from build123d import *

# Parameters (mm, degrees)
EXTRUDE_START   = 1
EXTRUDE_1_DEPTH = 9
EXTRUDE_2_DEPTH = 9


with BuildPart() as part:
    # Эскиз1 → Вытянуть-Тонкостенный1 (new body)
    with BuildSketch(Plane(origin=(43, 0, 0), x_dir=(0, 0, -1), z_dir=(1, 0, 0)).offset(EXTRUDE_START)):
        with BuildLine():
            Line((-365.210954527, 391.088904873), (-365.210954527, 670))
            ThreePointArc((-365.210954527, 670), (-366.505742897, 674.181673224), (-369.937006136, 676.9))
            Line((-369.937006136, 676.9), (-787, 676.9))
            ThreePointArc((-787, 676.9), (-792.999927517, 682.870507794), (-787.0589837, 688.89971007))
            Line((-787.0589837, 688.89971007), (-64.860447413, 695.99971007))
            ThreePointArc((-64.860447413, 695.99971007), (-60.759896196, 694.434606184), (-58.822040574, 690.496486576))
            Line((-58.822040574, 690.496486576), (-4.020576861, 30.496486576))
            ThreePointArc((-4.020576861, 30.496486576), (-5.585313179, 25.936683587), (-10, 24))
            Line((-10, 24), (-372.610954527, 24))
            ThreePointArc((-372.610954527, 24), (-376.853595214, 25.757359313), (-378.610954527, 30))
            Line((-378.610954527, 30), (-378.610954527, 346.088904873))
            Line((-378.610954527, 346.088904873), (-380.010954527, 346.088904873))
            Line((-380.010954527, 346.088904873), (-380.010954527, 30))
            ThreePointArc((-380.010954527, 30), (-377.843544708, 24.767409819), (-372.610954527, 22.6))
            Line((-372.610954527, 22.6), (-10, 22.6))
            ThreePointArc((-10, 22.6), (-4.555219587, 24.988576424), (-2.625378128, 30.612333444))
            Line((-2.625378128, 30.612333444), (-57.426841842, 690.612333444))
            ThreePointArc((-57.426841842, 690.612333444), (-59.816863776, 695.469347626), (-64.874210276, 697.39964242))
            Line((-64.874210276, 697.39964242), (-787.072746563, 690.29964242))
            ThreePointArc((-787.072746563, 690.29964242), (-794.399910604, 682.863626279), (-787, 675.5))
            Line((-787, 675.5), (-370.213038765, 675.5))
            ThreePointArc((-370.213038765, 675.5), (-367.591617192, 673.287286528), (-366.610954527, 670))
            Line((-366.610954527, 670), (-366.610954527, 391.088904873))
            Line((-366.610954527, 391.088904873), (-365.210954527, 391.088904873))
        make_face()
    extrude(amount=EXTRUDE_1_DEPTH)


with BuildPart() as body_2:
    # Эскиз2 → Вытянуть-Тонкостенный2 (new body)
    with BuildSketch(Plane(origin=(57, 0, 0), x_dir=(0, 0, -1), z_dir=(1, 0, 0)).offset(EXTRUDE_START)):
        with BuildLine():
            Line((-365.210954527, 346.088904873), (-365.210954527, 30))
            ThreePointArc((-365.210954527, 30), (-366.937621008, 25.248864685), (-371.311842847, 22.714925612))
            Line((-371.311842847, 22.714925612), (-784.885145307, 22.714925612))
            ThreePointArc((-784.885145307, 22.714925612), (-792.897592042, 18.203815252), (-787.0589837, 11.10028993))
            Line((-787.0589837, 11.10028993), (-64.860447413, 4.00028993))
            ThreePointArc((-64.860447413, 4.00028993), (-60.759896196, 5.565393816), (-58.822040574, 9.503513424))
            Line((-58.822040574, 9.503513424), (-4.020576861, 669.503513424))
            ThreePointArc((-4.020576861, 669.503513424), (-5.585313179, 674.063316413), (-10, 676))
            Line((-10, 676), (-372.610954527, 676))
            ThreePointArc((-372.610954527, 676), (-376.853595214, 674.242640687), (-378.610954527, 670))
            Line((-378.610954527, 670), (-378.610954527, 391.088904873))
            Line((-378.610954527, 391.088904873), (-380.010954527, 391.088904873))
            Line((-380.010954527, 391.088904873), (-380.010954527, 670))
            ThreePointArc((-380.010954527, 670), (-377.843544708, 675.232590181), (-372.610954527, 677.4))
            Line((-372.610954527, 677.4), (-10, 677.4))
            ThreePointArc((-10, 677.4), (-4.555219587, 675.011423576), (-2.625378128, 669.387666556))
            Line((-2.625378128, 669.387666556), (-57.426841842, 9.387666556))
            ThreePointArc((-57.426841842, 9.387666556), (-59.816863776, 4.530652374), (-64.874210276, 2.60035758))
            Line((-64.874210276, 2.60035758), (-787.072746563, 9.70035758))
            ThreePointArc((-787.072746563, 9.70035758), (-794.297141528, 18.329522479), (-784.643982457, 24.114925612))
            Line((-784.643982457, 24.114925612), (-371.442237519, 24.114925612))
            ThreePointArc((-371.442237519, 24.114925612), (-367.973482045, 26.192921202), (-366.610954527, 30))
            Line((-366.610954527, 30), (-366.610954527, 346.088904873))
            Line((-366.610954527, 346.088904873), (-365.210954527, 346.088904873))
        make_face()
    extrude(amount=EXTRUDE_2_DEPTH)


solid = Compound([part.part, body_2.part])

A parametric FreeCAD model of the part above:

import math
import FreeCAD as App
import Part
import Sketcher
Q = App.Units.Quantity

doc = App.newDocument("Part")
params = doc.addObject("Spreadsheet::Sheet", "Params")
for row, (alias, value) in enumerate([
    ("sketch1_radius", "6 mm"),
    ("sketch1_radius2", "7.4 mm"),
    ("pad1_length", "9 mm"),
    ("sketch2_radius", "6 mm"),
    ("sketch2_radius2", "7.4 mm"),
    ("pad2_length", "9 mm"),
], start=1):
    params.set(f"A{row}", alias)
    params.set(f"B{row}", "=" + value)
    params.setAlias(f"B{row}", alias)

body = doc.addObject("PartDesign::Body", "Body")

# Sketch on YZ plane
sketch1 = body.newObject("Sketcher::SketchObject", "Sketch")
sketch1.AttachmentSupport = (doc.getObject("YZ_Plane"), [""])
sketch1.MapMode = "FlatFace"
sketch1.AttachmentOffset = App.Placement(App.Vector(0, 0, 44), App.Rotation())
sketch1.addGeometry(Part.LineSegment(App.Vector(391.1, 365.2, 0), App.Vector(670, 365.2, 0)), False)
sketch1.addGeometry(Part.ArcOfCircle(Part.Circle(App.Vector(670, 372.6, 0), App.Vector(0, 0, 1), 7.4), math.radians(-90), math.radians(-21)), False)
sketch1.addGeometry(Part.LineSegment(App.Vector(676.9, 369.9, 0), App.Vector(676.9, 787, 0)), False)
sketch1.addGeometry(Part.ArcOfCircle(Part.Circle(App.Vector(682.9, 787, 0), App.Vector(0, 0, 1), 6), math.radians(1), math.radians(180)), False)
sketch1.addGeometry(Part.LineSegment(App.Vector(688.9, 787.1, 0), App.Vector(696, 64.9, 0)), False)
sketch1.addGeometry(Part.ArcOfCircle(Part.Circle(App.Vector(690, 64.8, 0), App.Vector(0, 0, 1), 6), math.radians(-85), math.radians(1)), False)
sketch1.addGeometry(Part.LineSegment(App.Vector(690.5, 58.8, 0), App.Vector(30.5, 4, 0)), False)
sketch1.addGeometry(Part.ArcOfCircle(Part.Circle(App.Vector(30, 10, 0), App.Vector(0, 0, 1), 6), math.radians(180), math.radians(275)), False)
sketch1.addGeometry(Part.LineSegment(App.Vector(24, 10, 0), App.Vector(24, 372.6, 0)), False)
sketch1.addGeometry(Part.ArcOfCircle(Part.Circle(App.Vector(30, 372.6, 0), App.Vector(0, 0, 1), 6), math.radians(90), math.radians(180)), False)
sketch1.addGeometry(Part.LineSegment(App.Vector(30, 378.6, 0), App.Vector(346.1, 378.6, 0)), False)
sketch1.addGeometry(Part.LineSegment(App.Vector(346.1, 378.6, 0), App.Vector(346.1, 380, 0)), False)
sketch1.addGeometry(Part.LineSegment(App.Vector(346.1, 380, 0), App.Vector(30, 380, 0)), False)
sketch1.addGeometry(Part.ArcOfCircle(Part.Circle(App.Vector(30, 372.6, 0), App.Vector(0, 0, 1), 7.4), math.radians(90), math.radians(180)), False)
sketch1.addGeometry(Part.LineSegment(App.Vector(22.6, 372.6, 0), App.Vector(22.6, 10, 0)), False)
sketch1.addGeometry(Part.ArcOfCircle(Part.Circle(App.Vector(30, 10, 0), App.Vector(0, 0, 1), 7.4), math.radians(180), math.radians(275)), False)
sketch1.addGeometry(Part.LineSegment(App.Vector(30.6, 2.6, 0), App.Vector(690.6, 57.4, 0)), False)
sketch1.addGeometry(Part.ArcOfCircle(Part.Circle(App.Vector(690, 64.8, 0), App.Vector(0, 0, 1), 7.4), math.radians(-85), math.radians(1)), False)
sketch1.addGeometry(Part.LineSegment(App.Vector(697.4, 64.9, 0), App.Vector(690.3, 787.1, 0)), False)
sketch1.addGeometry(Part.ArcOfCircle(Part.Circle(App.Vector(682.9, 787, 0), App.Vector(0, 0, 1), 7.4), math.radians(1), math.radians(180)), False)
sketch1.addGeometry(Part.LineSegment(App.Vector(675.5, 787, 0), App.Vector(675.5, 370.2, 0)), False)
sketch1.addGeometry(Part.ArcOfCircle(Part.Circle(App.Vector(670, 372.6, 0), App.Vector(0, 0, 1), 6), math.radians(-90), math.radians(-24)), False)
sketch1.addGeometry(Part.LineSegment(App.Vector(670, 366.6, 0), App.Vector(391.1, 366.6, 0)), False)
sketch1.addGeometry(Part.LineSegment(App.Vector(391.1, 366.6, 0), App.Vector(391.1, 365.2, 0)), False)
sketch1.addConstraint(Sketcher.Constraint("Tangent", 0, 2, 1, 1))
sketch1.addConstraint(Sketcher.Constraint("Coincident", 1, 2, 2, 1))
sketch1.addConstraint(Sketcher.Constraint("Tangent", 2, 2, 3, 2))
sketch1.addConstraint(Sketcher.Constraint("Tangent", 3, 1, 4, 1))
sketch1.addConstraint(Sketcher.Constraint("Tangent", 4, 2, 5, 2))
sketch1.addConstraint(Sketcher.Constraint("Tangent", 5, 1, 6, 1))
sketch1.addConstraint(Sketcher.Constraint("Tangent", 6, 2, 7, 2))
sketch1.addConstraint(Sketcher.Constraint("Tangent", 7, 1, 8, 1))
sketch1.addConstraint(Sketcher.Constraint("Tangent", 8, 2, 9, 2))
sketch1.addConstraint(Sketcher.Constraint("Tangent", 9, 1, 10, 1))
sketch1.addConstraint(Sketcher.Constraint("Coincident", 10, 2, 11, 1))
sketch1.addConstraint(Sketcher.Constraint("Coincident", 11, 2, 12, 1))
sketch1.addConstraint(Sketcher.Constraint("Tangent", 12, 2, 13, 1))
sketch1.addConstraint(Sketcher.Constraint("Tangent", 13, 2, 14, 1))
sketch1.addConstraint(Sketcher.Constraint("Tangent", 14, 2, 15, 1))
sketch1.addConstraint(Sketcher.Constraint("Tangent", 15, 2, 16, 1))
sketch1.addConstraint(Sketcher.Constraint("Tangent", 16, 2, 17, 1))
sketch1.addConstraint(Sketcher.Constraint("Tangent", 17, 2, 18, 1))
sketch1.addConstraint(Sketcher.Constraint("Tangent", 18, 2, 19, 1))
sketch1.addConstraint(Sketcher.Constraint("Tangent", 19, 2, 20, 1))
sketch1.addConstraint(Sketcher.Constraint("Coincident", 20, 2, 21, 2))
sketch1.addConstraint(Sketcher.Constraint("Tangent", 21, 1, 22, 1))
sketch1.addConstraint(Sketcher.Constraint("Coincident", 22, 2, 23, 1))
sketch1.addConstraint(Sketcher.Constraint("Coincident", 23, 2, 0, 1))
sketch1.addConstraint(Sketcher.Constraint("Horizontal", 0))
sketch1.addConstraint(Sketcher.Constraint("Vertical", 2))
sketch1.addConstraint(Sketcher.Constraint("Vertical", 8))
sketch1.addConstraint(Sketcher.Constraint("Horizontal", 10))
sketch1.addConstraint(Sketcher.Constraint("Vertical", 11))
sketch1.addConstraint(Sketcher.Constraint("Horizontal", 12))
sketch1.addConstraint(Sketcher.Constraint("Vertical", 14))
sketch1.addConstraint(Sketcher.Constraint("Vertical", 20))
sketch1.addConstraint(Sketcher.Constraint("Horizontal", 22))
sketch1.addConstraint(Sketcher.Constraint("Vertical", 23))
sketch1.addConstraint(Sketcher.Constraint("Coincident", 13, 3, 9, 3))
sketch1.addConstraint(Sketcher.Constraint("Coincident", 15, 3, 7, 3))
sketch1.addConstraint(Sketcher.Constraint("Coincident", 17, 3, 5, 3))
sketch1.addConstraint(Sketcher.Constraint("Coincident", 19, 3, 3, 3))
sketch1.addConstraint(Sketcher.Constraint("Coincident", 21, 3, 1, 3))
sketch1.addConstraint(Sketcher.Constraint("Equal", 3, 5))
sketch1.addConstraint(Sketcher.Constraint("Equal", 5, 7))
sketch1.addConstraint(Sketcher.Constraint("Equal", 7, 9))
sketch1.addConstraint(Sketcher.Constraint("Equal", 1, 13))
sketch1.addConstraint(Sketcher.Constraint("Equal", 15, 17))
sketch1.addConstraint(Sketcher.Constraint("Equal", 17, 19))
sketch1.addConstraint(Sketcher.Constraint("Equal", 9, 21))
sketch1.addConstraint(Sketcher.Constraint("Horizontal", 1, 3, 9, 3))
sketch1.addConstraint(Sketcher.Constraint("Radius", 3, Q("6 mm")))
sketch1.addConstraint(Sketcher.Constraint("Radius", 1, Q("7.4 mm")))
sketch1.addConstraint(Sketcher.Constraint("DistanceX", -1, 1, 1, 3, Q("670 mm")))
sketch1.addConstraint(Sketcher.Constraint("DistanceY", -1, 1, 3, 3, Q("787 mm")))
sketch1.addConstraint(Sketcher.Constraint("DistanceX", -1, 1, 5, 3, Q("690 mm")))
sketch1.addConstraint(Sketcher.Constraint("DistanceX", -1, 1, 7, 3, Q("30 mm")))
sketch1.addConstraint(Sketcher.Constraint("DistanceY", -1, 1, 7, 3, Q("10 mm")))
sketch1.addConstraint(Sketcher.Constraint("DistanceX", 10, 2, 22, 2, Q("45 mm")))
sketch1.addConstraint(Sketcher.Constraint("DistanceX", -1, 1, 3, 3, Q("682.9 mm")))
sketch1.addConstraint(Sketcher.Constraint("DistanceY", 20, 2, 20, 1, Q("416.786961 mm")))
sketch1.addConstraint(Sketcher.Constraint("DistanceX", 0, 1, 0, 2, Q("278.911095 mm")))
sketch1.addConstraint(Sketcher.Constraint("DistanceY", -1, 1, 5, 1, Q("58.822041 mm")))
sketch1.setExpression("Constraints[47]", "Params.sketch1_radius")
sketch1.setExpression("Constraints[48]", "Params.sketch1_radius2")
pad1 = body.newObject("PartDesign::Pad", "Pad")
pad1.Profile = sketch1
pad1.setExpression("Length", "Params.pad1_length")
body2 = doc.addObject("PartDesign::Body", "Body001")

# Sketch on YZ plane
sketch2 = body2.newObject("Sketcher::SketchObject", "Sketch001")
sketch2.AttachmentSupport = (doc.getObject("YZ_Plane001"), [""])
sketch2.MapMode = "FlatFace"
sketch2.AttachmentOffset = App.Placement(App.Vector(0, 0, 58), App.Rotation())
sketch2.addGeometry(Part.LineSegment(App.Vector(30, 365.2, 0), App.Vector(346.1, 365.2, 0)), False)
sketch2.addGeometry(Part.LineSegment(App.Vector(346.1, 365.2, 0), App.Vector(346.1, 366.6, 0)), False)
sketch2.addGeometry(Part.LineSegment(App.Vector(346.1, 366.6, 0), App.Vector(30, 366.6, 0)), False)
sketch2.addGeometry(Part.ArcOfCircle(Part.Circle(App.Vector(30, 372.6, 0), App.Vector(0, 0, 1), 6), math.radians(-169), math.radians(-90)), False)
sketch2.addGeometry(Part.LineSegment(App.Vector(24.1, 371.4, 0), App.Vector(24.1, 784.6, 0)), False)
sketch2.addGeometry(Part.ArcOfCircle(Part.Circle(App.Vector(17.1, 787, 0), App.Vector(0, 0, 1), 7.4), math.radians(-19), math.radians(179)), False)
sketch2.addGeometry(Part.LineSegment(App.Vector(9.7, 787.1, 0), App.Vector(2.6, 64.9, 0)), False)
sketch2.addGeometry(Part.ArcOfCircle(Part.Circle(App.Vector(10, 64.8, 0), App.Vector(0, 0, 1), 7.4), math.radians(179), math.radians(265)), False)
sketch2.addGeometry(Part.LineSegment(App.Vector(9.4, 57.4, 0), App.Vector(669.4, 2.6, 0)), False)
sketch2.addGeometry(Part.ArcOfCircle(Part.Circle(App.Vector(670, 10, 0), App.Vector(0, 0, 1), 7.4), math.radians(-95), math.radians(0)), False)
sketch2.addGeometry(Part.LineSegment(App.Vector(677.4, 10, 0), App.Vector(677.4, 372.6, 0)), False)
sketch2.addGeometry(Part.ArcOfCircle(Part.Circle(App.Vector(670, 372.6, 0), App.Vector(0, 0, 1), 7.4), math.radians(0), math.radians(90)), False)
sketch2.addGeometry(Part.LineSegment(App.Vector(670, 380, 0), App.Vector(391.1, 380, 0)), False)
sketch2.addGeometry(Part.LineSegment(App.Vector(391.1, 380, 0), App.Vector(391.1, 378.6, 0)), False)
sketch2.addGeometry(Part.LineSegment(App.Vector(391.1, 378.6, 0), App.Vector(670, 378.6, 0)), False)
sketch2.addGeometry(Part.ArcOfCircle(Part.Circle(App.Vector(670, 372.6, 0), App.Vector(0, 0, 1), 6), math.radians(0), math.radians(90)), False)
sketch2.addGeometry(Part.LineSegment(App.Vector(676, 372.6, 0), App.Vector(676, 10, 0)), False)
sketch2.addGeometry(Part.ArcOfCircle(Part.Circle(App.Vector(670, 10, 0), App.Vector(0, 0, 1), 6), math.radians(-95), math.radians(0)), False)
sketch2.addGeometry(Part.LineSegment(App.Vector(669.5, 4, 0), App.Vector(9.5, 58.8, 0)), False)
sketch2.addGeometry(Part.ArcOfCircle(Part.Circle(App.Vector(10, 64.8, 0), App.Vector(0, 0, 1), 6), math.radians(179), math.radians(265)), False)
sketch2.addGeometry(Part.LineSegment(App.Vector(4, 64.9, 0), App.Vector(11.1, 787.1, 0)), False)
sketch2.addGeometry(Part.ArcOfCircle(Part.Circle(App.Vector(17.1, 787, 0), App.Vector(0, 0, 1), 6), math.radians(-21), math.radians(179)), False)
sketch2.addGeometry(Part.LineSegment(App.Vector(22.7, 784.9, 0), App.Vector(22.7, 371.3, 0)), False)
sketch2.addGeometry(Part.ArcOfCircle(Part.Circle(App.Vector(30, 372.6, 0), App.Vector(0, 0, 1), 7.4), math.radians(-170), math.radians(-90)), False)
sketch2.addConstraint(Sketcher.Constraint("Coincident", 0, 2, 1, 1))
sketch2.addConstraint(Sketcher.Constraint("Coincident", 1, 2, 2, 1))
sketch2.addConstraint(Sketcher.Constraint("Tangent", 2, 2, 3, 2))
sketch2.addConstraint(Sketcher.Constraint("Coincident", 3, 1, 4, 1))
sketch2.addConstraint(Sketcher.Constraint("Coincident", 4, 2, 5, 1))
sketch2.addConstraint(Sketcher.Constraint("Tangent", 5, 2, 6, 1))
sketch2.addConstraint(Sketcher.Constraint("Tangent", 6, 2, 7, 1))
sketch2.addConstraint(Sketcher.Constraint("Tangent", 7, 2, 8, 1))
sketch2.addConstraint(Sketcher.Constraint("Tangent", 8, 2, 9, 1))
sketch2.addConstraint(Sketcher.Constraint("Tangent", 9, 2, 10, 1))
sketch2.addConstraint(Sketcher.Constraint("Tangent", 10, 2, 11, 1))
sketch2.addConstraint(Sketcher.Constraint("Tangent", 11, 2, 12, 1))
sketch2.addConstraint(Sketcher.Constraint("Coincident", 12, 2, 13, 1))
sketch2.addConstraint(Sketcher.Constraint("Coincident", 13, 2, 14, 1))
sketch2.addConstraint(Sketcher.Constraint("Tangent", 14, 2, 15, 2))
sketch2.addConstraint(Sketcher.Constraint("Tangent", 15, 1, 16, 1))
sketch2.addConstraint(Sketcher.Constraint("Tangent", 16, 2, 17, 2))
sketch2.addConstraint(Sketcher.Constraint("Tangent", 17, 1, 18, 1))
sketch2.addConstraint(Sketcher.Constraint("Tangent", 18, 2, 19, 2))
sketch2.addConstraint(Sketcher.Constraint("Tangent", 19, 1, 20, 1))
sketch2.addConstraint(Sketcher.Constraint("Tangent", 20, 2, 21, 2))
sketch2.addConstraint(Sketcher.Constraint("Coincident", 21, 1, 22, 1))
sketch2.addConstraint(Sketcher.Constraint("Coincident", 22, 2, 23, 1))
sketch2.addConstraint(Sketcher.Constraint("Tangent", 23, 2, 0, 1))
sketch2.addConstraint(Sketcher.Constraint("Horizontal", 0))
sketch2.addConstraint(Sketcher.Constraint("Vertical", 1))
sketch2.addConstraint(Sketcher.Constraint("Horizontal", 2))
sketch2.addConstraint(Sketcher.Constraint("Vertical", 4))
sketch2.addConstraint(Sketcher.Constraint("Vertical", 10))
sketch2.addConstraint(Sketcher.Constraint("Horizontal", 12))
sketch2.addConstraint(Sketcher.Constraint("Vertical", 13))
sketch2.addConstraint(Sketcher.Constraint("Horizontal", 14))
sketch2.addConstraint(Sketcher.Constraint("Vertical", 16))
sketch2.addConstraint(Sketcher.Constraint("Vertical", 22))
sketch2.addConstraint(Sketcher.Constraint("Coincident", 15, 3, 11, 3))
sketch2.addConstraint(Sketcher.Constraint("Coincident", 17, 3, 9, 3))
sketch2.addConstraint(Sketcher.Constraint("Coincident", 19, 3, 7, 3))
sketch2.addConstraint(Sketcher.Constraint("Coincident", 21, 3, 5, 3))
sketch2.addConstraint(Sketcher.Constraint("Coincident", 23, 3, 3, 3))
sketch2.addConstraint(Sketcher.Constraint("Equal", 5, 7))
sketch2.addConstraint(Sketcher.Constraint("Equal", 7, 9))
sketch2.addConstraint(Sketcher.Constraint("Equal", 9, 11))
sketch2.addConstraint(Sketcher.Constraint("Equal", 3, 15))
sketch2.addConstraint(Sketcher.Constraint("Equal", 17, 19))
sketch2.addConstraint(Sketcher.Constraint("Equal", 19, 21))
sketch2.addConstraint(Sketcher.Constraint("Equal", 11, 23))
sketch2.addConstraint(Sketcher.Constraint("Horizontal", 3, 3, 11, 3))
sketch2.addConstraint(Sketcher.Constraint("Radius", 3, Q("6 mm")))
sketch2.addConstraint(Sketcher.Constraint("Radius", 5, Q("7.4 mm")))
sketch2.addConstraint(Sketcher.Constraint("DistanceX", -1, 1, 3, 3, Q("30 mm")))
sketch2.addConstraint(Sketcher.Constraint("DistanceY", -1, 1, 5, 3, Q("787 mm")))
sketch2.addConstraint(Sketcher.Constraint("DistanceX", -1, 1, 7, 3, Q("10 mm")))
sketch2.addConstraint(Sketcher.Constraint("DistanceX", -1, 1, 9, 3, Q("670 mm")))
sketch2.addConstraint(Sketcher.Constraint("DistanceY", -1, 1, 9, 3, Q("10 mm")))
sketch2.addConstraint(Sketcher.Constraint("DistanceX", 1, 2, 12, 2, Q("45 mm")))
sketch2.addConstraint(Sketcher.Constraint("DistanceX", -1, 1, 5, 3, Q("17.1 mm")))
sketch2.addConstraint(Sketcher.Constraint("DistanceX", 21, 1, 4, 2, Q("1.4 mm")))
sketch2.addConstraint(Sketcher.Constraint("DistanceY", 4, 2, 20, 2, Q("2.415001 mm")))
sketch2.addConstraint(Sketcher.Constraint("DistanceX", 0, 1, 0, 2, Q("316.088905 mm")))
sketch2.addConstraint(Sketcher.Constraint("DistanceY", 4, 1, 4, 2, Q("413.201745 mm")))
sketch2.addConstraint(Sketcher.Constraint("DistanceY", -1, 1, 6, 2, Q("64.87421 mm")))
sketch2.setExpression("Constraints[47]", "Params.sketch2_radius")
sketch2.setExpression("Constraints[48]", "Params.sketch2_radius2")
pad2 = body2.newObject("PartDesign::Pad", "Pad001")
pad2.Profile = sketch2
pad2.setExpression("Length", "Params.pad2_length")

doc.recompute()
